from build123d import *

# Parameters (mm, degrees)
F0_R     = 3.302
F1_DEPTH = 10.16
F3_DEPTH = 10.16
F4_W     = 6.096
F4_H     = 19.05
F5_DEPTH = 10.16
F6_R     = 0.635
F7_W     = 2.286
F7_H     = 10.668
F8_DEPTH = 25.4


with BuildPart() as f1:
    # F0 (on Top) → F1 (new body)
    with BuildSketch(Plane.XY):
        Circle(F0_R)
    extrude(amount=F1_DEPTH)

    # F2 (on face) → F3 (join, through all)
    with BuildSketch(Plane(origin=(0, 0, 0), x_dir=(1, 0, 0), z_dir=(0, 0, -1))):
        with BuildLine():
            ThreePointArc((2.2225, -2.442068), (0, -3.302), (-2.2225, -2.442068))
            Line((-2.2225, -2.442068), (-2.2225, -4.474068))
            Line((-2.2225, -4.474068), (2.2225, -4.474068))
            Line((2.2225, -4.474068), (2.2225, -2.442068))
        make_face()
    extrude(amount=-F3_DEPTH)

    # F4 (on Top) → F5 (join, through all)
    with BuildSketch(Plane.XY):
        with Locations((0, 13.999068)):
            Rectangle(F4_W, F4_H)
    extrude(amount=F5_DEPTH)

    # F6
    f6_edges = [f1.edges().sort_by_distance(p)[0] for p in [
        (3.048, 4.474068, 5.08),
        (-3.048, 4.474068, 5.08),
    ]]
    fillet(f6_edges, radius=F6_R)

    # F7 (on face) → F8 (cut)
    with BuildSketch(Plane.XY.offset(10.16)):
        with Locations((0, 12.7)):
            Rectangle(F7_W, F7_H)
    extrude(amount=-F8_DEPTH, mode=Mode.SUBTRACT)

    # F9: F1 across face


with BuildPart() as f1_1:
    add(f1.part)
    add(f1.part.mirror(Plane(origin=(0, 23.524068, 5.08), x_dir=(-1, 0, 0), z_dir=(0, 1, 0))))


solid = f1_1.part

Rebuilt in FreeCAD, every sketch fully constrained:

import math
import FreeCAD as App
import Part
import Sketcher

V = App.Vector
Q = App.Units.Quantity


def edges_at(feature, points):
    """Names of the edges that pass closest to the given points."""
    edges = feature.Shape.Edges
    near = lambda p: min(range(len(edges)), key=lambda i: edges[i].distToShape(Part.Vertex(*p))[0])
    return sorted({f"Edge{near(p) + 1}" for p in points})


def add_polygon(sketch, points):
    """Adds a closed chain of lines whose ends are joined by coincident constraints."""
    first, n = sketch.GeometryCount, len(points)
    for a, b in zip(points, points[1:] + points[:1]):
        sketch.addGeometry(Part.LineSegment(App.Vector(*a, 0), App.Vector(*b, 0)), False)
    for i in range(n):
        sketch.addConstraint(Sketcher.Constraint("Coincident", first + i, 2, first + (i + 1) % n, 1))

doc = App.newDocument("Part")
body = doc.addObject("PartDesign::Body", "Body")

sketch1 = body.newObject("Sketcher::SketchObject", "Sketch")
sketch1.AttachmentSupport = (doc.getObject("XY_Plane"), [""])
sketch1.MapMode = "FlatFace"
sketch1.addGeometry(Part.Circle(V(0, 0, 0), V(0, 0, 1), 3.302), False)
sketch1.addConstraint(Sketcher.Constraint("Coincident", 0, 3, -1, 1))
sketch1.addConstraint(Sketcher.Constraint("Diameter", 0, Q("0.26 in")))
pad1 = body.newObject("PartDesign::Pad", "Pad")
pad1.Profile = sketch1
pad1.Length = Q("0.4 in")

sketch2 = body.newObject("Sketcher::SketchObject", "Sketch001")
sketch2.AttachmentSupport = (doc.getObject("XY_Plane"), [""])
sketch2.MapMode = "FlatFace"
sketch2.addGeometry(Part.ArcOfCircle(Part.Circle(V(0, 0.000001, 0), V(0, 0, 1), 3.301999), math.radians(47.694995), math.radians(132.305005)), False)
sketch2.addGeometry(Part.LineSegment(V(-2.2225, 2.442068, 0), V(-2.2225, 4.474068, 0)), False)
sketch2.addGeometry(Part.LineSegment(V(-2.2225, 4.474068, 0), V(2.2225, 4.474068, 0)), False)
sketch2.addGeometry(Part.LineSegment(V(2.2225, 4.474068, 0), V(2.2225, 2.442068, 0)), False)
sketch2.addConstraint(Sketcher.Constraint("Coincident", 0, 2, 1, 1))
sketch2.addConstraint(Sketcher.Constraint("Coincident", 1, 2, 2, 1))
sketch2.addConstraint(Sketcher.Constraint("Coincident", 2, 2, 3, 1))
sketch2.addConstraint(Sketcher.Constraint("Coincident", 3, 2, 0, 1))
sketch2.addConstraint(Sketcher.Constraint("Vertical", 1))
sketch2.addConstraint(Sketcher.Constraint("Horizontal", 2))
sketch2.addConstraint(Sketcher.Constraint("Vertical", 3))
sketch2.addConstraint(Sketcher.Constraint("Coincident", 0, 3, -1, 1))
sketch2.addConstraint(Sketcher.Constraint("Horizontal", 0, 2, 3, 2))
sketch2.addConstraint(Sketcher.Constraint("Radius", 0, Q("0.13 in")))
sketch2.addConstraint(Sketcher.Constraint("DistanceY", 1, 1, 1, 2, Q("0.08 in")))
sketch2.addConstraint(Sketcher.Constraint("DistanceX", 2, 1, 2, 2, Q("0.175 in")))
pad2 = body.newObject("PartDesign::Pad", "Pad001")
pad2.Profile = sketch2
pad2.Length = Q("0.4 in")

sketch3 = body.newObject("Sketcher::SketchObject", "Sketch002")
sketch3.AttachmentSupport = (doc.getObject("XY_Plane"), [""])
sketch3.MapMode = "FlatFace"
add_polygon(sketch3, [(-3.048, 23.524068), (-3.048, 4.474068), (3.048, 4.474068), (3.048, 23.524068)])
sketch3.addConstraint(Sketcher.Constraint("Vertical", 0))
sketch3.addConstraint(Sketcher.Constraint("Horizontal", 1))
sketch3.addConstraint(Sketcher.Constraint("Vertical", 2))
sketch3.addConstraint(Sketcher.Constraint("Horizontal", 3))
sketch3.addConstraint(Sketcher.Constraint("DistanceX", 1, 1, 1, 2, Q("0.24 in")))
sketch3.addConstraint(Sketcher.Constraint("DistanceY", 0, 2, 0, 1, Q("0.75 in")))
sketch3.addConstraint(Sketcher.Constraint("DistanceX", 0, 2, -1, 1, Q("0.12 in")))
sketch3.addConstraint(Sketcher.Constraint("DistanceY", -1, 1, 2, 2, Q("23.524068 mm")))
pad3 = body.newObject("PartDesign::Pad", "Pad002")
pad3.Profile = sketch3
pad3.Length = Q("0.4 in")
doc.recompute()

fillet = body.newObject("PartDesign::Fillet", "Fillet")
fillet.Base = (pad3, edges_at(pad3, [(3.048, 4.474, 5.08), (-3.048, 4.474, 5.08)]))
fillet.Radius = Q("0.025 in")

sketch4 = body.newObject("Sketcher::SketchObject", "Sketch003")
sketch4.AttachmentSupport = (doc.getObject("XY_Plane"), [""])
sketch4.MapMode = "FlatFace"
sketch4.AttachmentOffset = App.Placement(V(0, 0, 0.4 * 25.4), App.Rotation())
add_polygon(sketch4, [(-1.143, 18.034), (-1.143, 7.366), (1.143, 7.366), (1.143, 18.034)])
sketch4.addConstraint(Sketcher.Constraint("Vertical", 0))
sketch4.addConstraint(Sketcher.Constraint("Horizontal", 1))
sketch4.addConstraint(Sketcher.Constraint("Vertical", 2))
sketch4.addConstraint(Sketcher.Constraint("Horizontal", 3))
sketch4.addConstraint(Sketcher.Constraint("DistanceX", 1, 1, 1, 2, Q("0.09 in")))
sketch4.addConstraint(Sketcher.Constraint("DistanceY", 0, 2, 0, 1, Q("0.42 in")))
sketch4.addConstraint(Sketcher.Constraint("DistanceY", -1, 1, 0, 2, Q("0.29 in")))
sketch4.addConstraint(Sketcher.Constraint("DistanceX", 0, 2, -1, 1, Q("0.045 in")))
pocket1 = body.newObject("PartDesign::Pocket", "Pocket")
pocket1.Profile = sketch4
pocket1.Length = Q("1 in")
body2 = doc.addObject("PartDesign::Body", "Body001")
doc.recompute()

body2.BaseFeature = body
doc.recompute()

mirroring = doc.addObject("Part::Mirroring", "Mirroring")
mirroring.Source = body
mirroring.Base = V(0, 23.524068, 5.08)
mirroring.Normal = V(0, 1, 0)
body3 = doc.addObject("PartDesign::Body", "Body002")
body3.BaseFeature = mirroring
boolean = body2.newObject("PartDesign::Boolean", "Boolean")
boolean.Type = "Fuse"
boolean.addObjects([body3])
doc.recompute()
mirroring.Visibility = False

doc.recompute()
